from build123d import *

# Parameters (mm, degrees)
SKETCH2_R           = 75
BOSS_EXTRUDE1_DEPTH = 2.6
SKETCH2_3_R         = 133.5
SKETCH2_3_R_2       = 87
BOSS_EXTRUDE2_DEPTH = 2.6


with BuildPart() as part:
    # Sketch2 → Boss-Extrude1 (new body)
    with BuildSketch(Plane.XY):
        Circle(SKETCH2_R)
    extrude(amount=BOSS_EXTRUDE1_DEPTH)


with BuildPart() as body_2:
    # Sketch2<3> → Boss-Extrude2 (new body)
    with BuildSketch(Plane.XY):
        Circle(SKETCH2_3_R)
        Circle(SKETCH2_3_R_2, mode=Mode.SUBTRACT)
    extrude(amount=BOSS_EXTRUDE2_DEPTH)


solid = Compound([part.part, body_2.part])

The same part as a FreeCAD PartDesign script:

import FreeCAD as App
import Part
import Sketcher
from FreeCAD import Vector

doc = App.newDocument("Part")
body = doc.addObject("PartDesign::Body", "Body")

# Sketch on XY plane
sketch1 = body.newObject("Sketcher::SketchObject", "Sketch")
sketch1.AttachmentSupport = (doc.getObject("XY_Plane"), [""])
sketch1.MapMode = "FlatFace"
sketch1.addGeometry(Part.Circle(Vector(0, 0, 0), Vector(0, 0, 1), 75), False)
sketch1.addConstraint([
    Sketcher.Constraint("Coincident", 0, 3, -1, 1),
    Sketcher.Constraint("Diameter", 0, 150.0),
])
pad1 = body.newObject("PartDesign::Pad", "Pad")
pad1.Profile = sketch1
pad1.Length = 2.6
body2 = doc.addObject("PartDesign::Body", "Body001")

# Sketch on XY plane
sketch2 = body2.newObject("Sketcher::SketchObject", "Sketch001")
sketch2.AttachmentSupport = (doc.getObject("XY_Plane001"), [""])
sketch2.MapMode = "FlatFace"
sketch2.addGeometry([
    Part.Circle(Vector(0, 0, 0), Vector(0, 0, 1), 134),
    Part.Circle(Vector(0, 0, 0), Vector(0, 0, 1), 87),
], False)
sketch2.addConstraint([
    Sketcher.Constraint("Coincident", 0, 3, -1, 1),
    Sketcher.Constraint("Coincident", 1, 3, -1, 1),
    Sketcher.Constraint("Diameter", 0, 267.0),
    Sketcher.Constraint("Diameter", 1, 174.0),
])
pad2 = body2.newObject("PartDesign::Pad", "Pad001")
pad2.Profile = sketch2
pad2.Length = 2.6

doc.recompute()
